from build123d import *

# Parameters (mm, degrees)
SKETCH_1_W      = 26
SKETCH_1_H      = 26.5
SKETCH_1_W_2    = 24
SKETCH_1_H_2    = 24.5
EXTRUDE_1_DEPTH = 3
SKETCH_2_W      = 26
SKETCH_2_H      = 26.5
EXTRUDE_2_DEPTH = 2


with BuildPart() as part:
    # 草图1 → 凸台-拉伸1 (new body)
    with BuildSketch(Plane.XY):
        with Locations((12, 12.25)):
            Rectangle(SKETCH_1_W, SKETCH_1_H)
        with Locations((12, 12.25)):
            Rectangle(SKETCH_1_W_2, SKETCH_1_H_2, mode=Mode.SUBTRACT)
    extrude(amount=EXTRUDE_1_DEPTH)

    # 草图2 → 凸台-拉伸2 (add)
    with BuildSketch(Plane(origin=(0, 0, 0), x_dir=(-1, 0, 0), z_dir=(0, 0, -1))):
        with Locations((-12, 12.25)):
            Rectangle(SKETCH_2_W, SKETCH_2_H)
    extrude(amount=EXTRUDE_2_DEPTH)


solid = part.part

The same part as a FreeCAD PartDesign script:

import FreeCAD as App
import Part
import Sketcher
from FreeCAD import Vector
Q = App.Units.Quantity


def add_polygon(sketch, points):
    """Adds a closed chain of lines whose ends are joined by coincident constraints."""
    first, n = sketch.GeometryCount, len(points)
    for a, b in zip(points, points[1:] + points[:1]):
        sketch.addGeometry(Part.LineSegment(App.Vector(*a, 0), App.Vector(*b, 0)), False)
    for i in range(n):
        sketch.addConstraint(Sketcher.Constraint("Coincident", first + i, 2, first + (i + 1) % n, 1))

doc = App.newDocument("Part")
body = doc.addObject("PartDesign::Body", "Body")

# Sketch on XY plane
sketch1 = doc.addObject("Sketcher::SketchObject", "Sketch")
body.addObject(sketch1)
sketch1.AttachmentSupport = (doc.XY_Plane, [""])
sketch1.MapMode = "FlatFace"
add_polygon(sketch1, [(-1, 25.5), (-1, -1), (25, -1), (25, 25.5)])  # lines 0-3
add_polygon(sketch1, [(24, 0), (0, 0), (0, 24.5), (24, 24.5)])  # lines 4-7
sketch1.addConstraint(Sketcher.Constraint("Vertical", 0))
sketch1.addConstraint(Sketcher.Constraint("Horizontal", 1))
sketch1.addConstraint(Sketcher.Constraint("Vertical", 2))
sketch1.addConstraint(Sketcher.Constraint("Horizontal", 3))
sketch1.addConstraint(Sketcher.Constraint("Horizontal", 4))
sketch1.addConstraint(Sketcher.Constraint("Vertical", 5))
sketch1.addConstraint(Sketcher.Constraint("Horizontal", 6))
sketch1.addConstraint(Sketcher.Constraint("Vertical", 7))
sketch1.addConstraint(Sketcher.Constraint("Coincident", 4, 2, -1, 1))
sketch1.addConstraint(Sketcher.Constraint("DistanceX", 1, 1, 1, 2, Q("26 mm")))
sketch1.addConstraint(Sketcher.Constraint("DistanceX", 4, 2, 4, 1, Q("24 mm")))
sketch1.addConstraint(Sketcher.Constraint("DistanceY", 0, 2, 0, 1, Q("26.5 mm")))
sketch1.addConstraint(Sketcher.Constraint("DistanceY", 5, 1, 5, 2, Q("24.5 mm")))
sketch1.addConstraint(Sketcher.Constraint("DistanceX", 0, 2, -1, 1, Q("1 mm")))
sketch1.addConstraint(Sketcher.Constraint("DistanceY", 0, 2, -1, 1, Q("1 mm")))
pad1 = doc.addObject("PartDesign::Pad", "Pad")
body.addObject(pad1)
pad1.Profile = sketch1
pad1.Length = 3

# Sketch on XY plane
sketch2 = doc.addObject("Sketcher::SketchObject", "Sketch001")
body.addObject(sketch2)
sketch2.AttachmentSupport = (doc.XY_Plane, [""])
sketch2.MapMode = "FlatFace"
add_polygon(sketch2, [(25, 25.5), (25, -1), (-1, -1), (-1, 25.5)])  # lines 0-3
sketch2.addConstraint(Sketcher.Constraint("Vertical", 0))
sketch2.addConstraint(Sketcher.Constraint("Horizontal", 1))
sketch2.addConstraint(Sketcher.Constraint("Vertical", 2))
sketch2.addConstraint(Sketcher.Constraint("Horizontal", 3))
sketch2.addConstraint(Sketcher.Constraint("DistanceX", 1, 2, 1, 1, Q("26 mm")))
sketch2.addConstraint(Sketcher.Constraint("DistanceY", 0, 2, 0, 1, Q("26.5 mm")))
sketch2.addConstraint(Sketcher.Constraint("DistanceX", -1, 1, 0, 2, Q("25 mm")))
sketch2.addConstraint(Sketcher.Constraint("DistanceY", 0, 2, -1, 1, Q("1 mm")))
pad2 = doc.addObject("PartDesign::Pad", "Pad001")
body.addObject(pad2)
pad2.Profile = sketch2
pad2.Length = 2
pad2.Reversed = True

doc.recompute()
